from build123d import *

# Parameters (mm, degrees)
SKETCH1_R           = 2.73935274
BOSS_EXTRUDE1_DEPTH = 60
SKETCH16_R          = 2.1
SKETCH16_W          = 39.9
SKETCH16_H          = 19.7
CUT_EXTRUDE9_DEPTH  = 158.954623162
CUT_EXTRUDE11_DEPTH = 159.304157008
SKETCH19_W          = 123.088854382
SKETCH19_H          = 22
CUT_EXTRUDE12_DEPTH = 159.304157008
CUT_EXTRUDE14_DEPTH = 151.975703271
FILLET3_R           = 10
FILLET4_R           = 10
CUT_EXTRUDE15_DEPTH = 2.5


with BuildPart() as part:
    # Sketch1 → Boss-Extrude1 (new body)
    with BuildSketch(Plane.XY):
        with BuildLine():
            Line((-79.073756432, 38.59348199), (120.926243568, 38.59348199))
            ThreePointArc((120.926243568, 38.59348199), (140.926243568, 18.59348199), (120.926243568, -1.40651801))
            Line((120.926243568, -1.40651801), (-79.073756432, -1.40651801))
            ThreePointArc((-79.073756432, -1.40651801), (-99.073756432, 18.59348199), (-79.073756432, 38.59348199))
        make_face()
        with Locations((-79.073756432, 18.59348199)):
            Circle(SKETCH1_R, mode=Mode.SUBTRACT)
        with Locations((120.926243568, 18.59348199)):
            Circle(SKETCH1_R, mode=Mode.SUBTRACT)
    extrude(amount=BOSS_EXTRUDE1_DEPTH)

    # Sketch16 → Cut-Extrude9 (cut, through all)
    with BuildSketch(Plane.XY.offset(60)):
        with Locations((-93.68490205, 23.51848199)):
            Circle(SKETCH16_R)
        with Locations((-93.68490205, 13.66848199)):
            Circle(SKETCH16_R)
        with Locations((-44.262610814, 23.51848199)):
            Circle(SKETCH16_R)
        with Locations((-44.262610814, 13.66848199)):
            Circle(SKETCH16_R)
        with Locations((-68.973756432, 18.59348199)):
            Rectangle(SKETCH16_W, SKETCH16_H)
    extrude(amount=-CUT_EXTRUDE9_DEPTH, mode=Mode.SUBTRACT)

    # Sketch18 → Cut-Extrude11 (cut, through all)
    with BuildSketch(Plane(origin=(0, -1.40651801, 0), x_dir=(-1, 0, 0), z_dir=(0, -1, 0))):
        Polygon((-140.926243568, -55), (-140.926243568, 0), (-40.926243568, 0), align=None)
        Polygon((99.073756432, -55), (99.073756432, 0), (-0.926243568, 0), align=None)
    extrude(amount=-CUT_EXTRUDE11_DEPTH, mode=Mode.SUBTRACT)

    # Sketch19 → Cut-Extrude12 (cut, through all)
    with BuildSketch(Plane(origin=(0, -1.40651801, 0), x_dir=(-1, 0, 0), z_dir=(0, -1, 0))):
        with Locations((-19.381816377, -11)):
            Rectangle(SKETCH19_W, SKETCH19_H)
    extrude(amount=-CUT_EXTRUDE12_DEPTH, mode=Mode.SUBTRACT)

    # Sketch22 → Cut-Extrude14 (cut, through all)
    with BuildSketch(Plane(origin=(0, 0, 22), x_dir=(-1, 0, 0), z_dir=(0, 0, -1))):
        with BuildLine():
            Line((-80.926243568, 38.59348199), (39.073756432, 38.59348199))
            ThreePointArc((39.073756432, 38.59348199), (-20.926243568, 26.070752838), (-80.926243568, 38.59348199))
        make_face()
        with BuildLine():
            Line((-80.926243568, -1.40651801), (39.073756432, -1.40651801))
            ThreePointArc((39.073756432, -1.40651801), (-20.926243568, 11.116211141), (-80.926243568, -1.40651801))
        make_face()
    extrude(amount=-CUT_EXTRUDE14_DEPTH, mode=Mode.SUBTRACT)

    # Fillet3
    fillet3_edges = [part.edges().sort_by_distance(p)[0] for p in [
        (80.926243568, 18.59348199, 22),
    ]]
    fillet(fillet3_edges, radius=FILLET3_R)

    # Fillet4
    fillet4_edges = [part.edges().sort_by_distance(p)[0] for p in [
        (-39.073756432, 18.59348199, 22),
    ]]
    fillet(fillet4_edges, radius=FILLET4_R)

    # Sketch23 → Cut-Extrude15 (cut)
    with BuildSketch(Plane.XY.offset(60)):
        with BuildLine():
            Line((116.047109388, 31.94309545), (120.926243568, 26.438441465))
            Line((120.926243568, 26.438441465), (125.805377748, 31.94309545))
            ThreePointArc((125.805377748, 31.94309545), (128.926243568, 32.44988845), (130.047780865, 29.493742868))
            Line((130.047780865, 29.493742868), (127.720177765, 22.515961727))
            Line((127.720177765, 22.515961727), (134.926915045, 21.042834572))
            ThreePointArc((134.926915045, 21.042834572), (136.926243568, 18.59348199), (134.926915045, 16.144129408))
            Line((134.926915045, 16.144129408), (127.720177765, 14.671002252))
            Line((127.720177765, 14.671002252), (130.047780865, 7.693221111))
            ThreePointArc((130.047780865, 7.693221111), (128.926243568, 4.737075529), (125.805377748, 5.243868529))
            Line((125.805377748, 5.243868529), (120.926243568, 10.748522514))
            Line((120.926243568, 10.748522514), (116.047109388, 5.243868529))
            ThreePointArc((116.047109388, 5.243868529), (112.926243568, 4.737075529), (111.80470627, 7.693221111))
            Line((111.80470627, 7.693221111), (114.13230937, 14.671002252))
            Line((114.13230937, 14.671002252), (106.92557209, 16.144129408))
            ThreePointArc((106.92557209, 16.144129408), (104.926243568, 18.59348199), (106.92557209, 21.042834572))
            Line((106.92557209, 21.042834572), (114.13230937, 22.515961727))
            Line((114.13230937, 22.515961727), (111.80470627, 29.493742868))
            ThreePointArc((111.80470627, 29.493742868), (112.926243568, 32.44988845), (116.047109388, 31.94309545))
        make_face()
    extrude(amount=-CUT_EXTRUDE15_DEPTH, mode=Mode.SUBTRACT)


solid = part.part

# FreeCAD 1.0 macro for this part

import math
import FreeCAD as App
import Part
import Sketcher

V = App.Vector


def edges_at(feature, points):
    """Names of the edges that pass closest to the given points."""
    edges = feature.Shape.Edges
    near = lambda p: min(range(len(edges)), key=lambda i: edges[i].distToShape(Part.Vertex(*p))[0])
    return sorted({f"Edge{near(p) + 1}" for p in points})


def add_polygon(sketch, points):
    """Adds a closed chain of lines whose ends are joined by coincident constraints."""
    first, n = sketch.GeometryCount, len(points)
    for a, b in zip(points, points[1:] + points[:1]):
        sketch.addGeometry(Part.LineSegment(App.Vector(*a, 0), App.Vector(*b, 0)), False)
    for i in range(n):
        sketch.addConstraint(Sketcher.Constraint("Coincident", first + i, 2, first + (i + 1) % n, 1))

doc = App.newDocument("Part")
body = doc.addObject("PartDesign::Body", "Body")

sketch1 = doc.addObject("Sketcher::SketchObject", "Sketch")
body.addObject(sketch1)
sketch1.AttachmentSupport = (doc.XY_Plane, [""])
sketch1.MapMode = "FlatFace"
sketch1.addGeometry(Part.LineSegment(V(120.9, 38.6, 0), V(-79.1, 38.6, 0)), False)
sketch1.addGeometry(Part.ArcOfCircle(Part.Circle(V(-79.1, 18.6, 0), V(0, 0, 1), 20), math.radians(90), math.radians(270)), False)
sketch1.addGeometry(Part.LineSegment(V(-79.1, -1.4, 0), V(120.9, -1.4, 0)), False)
sketch1.addGeometry(Part.ArcOfCircle(Part.Circle(V(120.9, 18.6, 0), V(0, 0, 1), 20), math.radians(-90), math.radians(90)), False)
sketch1.addGeometry(Part.Circle(V(120.9, 18.6, 0), V(0, 0, 1), 2.7), False)
sketch1.addGeometry(Part.Circle(V(-79.1, 18.6, 0), V(0, 0, 1), 2.7), False)
sketch1.addConstraint(Sketcher.Constraint("Tangent", 0, 2, 1, 1))
sketch1.addConstraint(Sketcher.Constraint("Tangent", 1, 2, 2, 1))
sketch1.addConstraint(Sketcher.Constraint("Tangent", 2, 2, 3, 1))
sketch1.addConstraint(Sketcher.Constraint("Tangent", 3, 2, 0, 1))
sketch1.addConstraint(Sketcher.Constraint("Horizontal", 0))
sketch1.addConstraint(Sketcher.Constraint("Horizontal", 2))
sketch1.addConstraint(Sketcher.Constraint("Coincident", 4, 3, 3, 3))
sketch1.addConstraint(Sketcher.Constraint("Coincident", 5, 3, 1, 3))
sketch1.addConstraint(Sketcher.Constraint("Equal", 4, 5))
sketch1.addConstraint(Sketcher.Constraint("Radius", 1, 20.0))
sketch1.addConstraint(Sketcher.Constraint("DistanceX", 0, 2, 0, 1, 200.0))
sketch1.addConstraint(Sketcher.Constraint("Diameter", 4, 5.478705))
sketch1.addConstraint(Sketcher.Constraint("DistanceY", -1, 1, 1, 3, 18.593482))
sketch1.addConstraint(Sketcher.Constraint("DistanceX", 1, 3, -1, 1, 79.073756))
pad1 = doc.addObject("PartDesign::Pad", "Pad")
body.addObject(pad1)
pad1.Profile = sketch1
pad1.Length = 60

sketch2 = doc.addObject("Sketcher::SketchObject", "Sketch001")
body.addObject(sketch2)
sketch2.AttachmentSupport = (doc.XY_Plane, [""])
sketch2.MapMode = "FlatFace"
sketch2.AttachmentOffset = App.Placement(V(0, 0, 60), App.Rotation())
sketch2.addGeometry(Part.Circle(V(-93.7, 23.5, 0), V(0, 0, 1), 2.1), False)
sketch2.addGeometry(Part.Circle(V(-93.7, 13.7, 0), V(0, 0, 1), 2.1), False)
sketch2.addGeometry(Part.Circle(V(-44.3, 23.5, 0), V(0, 0, 1), 2.1), False)
sketch2.addGeometry(Part.Circle(V(-44.3, 13.7, 0), V(0, 0, 1), 2.1), False)
add_polygon(sketch2, [(-88.9, 28.4), (-88.9, 8.7), (-49, 8.7), (-49, 28.4)])
sketch2.addConstraint(Sketcher.Constraint("Vertical", 4))
sketch2.addConstraint(Sketcher.Constraint("Horizontal", 5))
sketch2.addConstraint(Sketcher.Constraint("Vertical", 6))
sketch2.addConstraint(Sketcher.Constraint("Horizontal", 7))
sketch2.addConstraint(Sketcher.Constraint("Equal", 0, 1))
sketch2.addConstraint(Sketcher.Constraint("Equal", 1, 2))
sketch2.addConstraint(Sketcher.Constraint("Equal", 2, 3))
sketch2.addConstraint(Sketcher.Constraint("Horizontal", 0, 3, 2, 3))
sketch2.addConstraint(Sketcher.Constraint("Horizontal", 1, 3, 3, 3))
sketch2.addConstraint(Sketcher.Constraint("Vertical", 0, 3, 1, 3))
sketch2.addConstraint(Sketcher.Constraint("Vertical", 2, 3, 3, 3))
sketch2.addConstraint(Sketcher.Constraint("Diameter", 0, 4.2))
sketch2.addConstraint(Sketcher.Constraint("DistanceX", 5, 1, 5, 2, 39.9))
sketch2.addConstraint(Sketcher.Constraint("DistanceY", 4, 2, 4, 1, 19.7))
sketch2.addConstraint(Sketcher.Constraint("DistanceY", 1, 3, 0, 3, 9.85))
sketch2.addConstraint(Sketcher.Constraint("DistanceY", 4, 2, 1, 3, 4.925))
sketch2.addConstraint(Sketcher.Constraint("DistanceY", -1, 1, 0, 3, 23.518482))
sketch2.addConstraint(Sketcher.Constraint("DistanceX", 2, 3, -1, 1, 44.262611))
sketch2.addConstraint(Sketcher.Constraint("DistanceX", 0, 3, 2, 3, 49.422291))
sketch2.addConstraint(Sketcher.Constraint("DistanceX", 4, 2, -1, 1, 88.923756))
pocket1 = doc.addObject("PartDesign::Pocket", "Pocket")
body.addObject(pocket1)
pocket1.Profile = sketch2
pocket1.Type = "ThroughAll"

sketch3 = doc.addObject("Sketcher::SketchObject", "Sketch002")
body.addObject(sketch3)
sketch3.AttachmentSupport = (doc.XZ_Plane, [""])
sketch3.MapMode = "FlatFace"
sketch3.AttachmentOffset = App.Placement(V(0, 0, 1.406518), App.Rotation())
add_polygon(sketch3, [(141, 0), (141, 55), (41, 0)])
add_polygon(sketch3, [(-99, 55), (-99, 0), (1, 0)])
sketch3.addConstraint(Sketcher.Constraint("Vertical", 0))
sketch3.addConstraint(Sketcher.Constraint("Horizontal", 2))
sketch3.addConstraint(Sketcher.Constraint("Vertical", 3))
sketch3.addConstraint(Sketcher.Constraint("Horizontal", 4))
sketch3.addConstraint(Sketcher.Constraint("PointOnObject", 1, 2, -1))
sketch3.addConstraint(Sketcher.Constraint("PointOnObject", 3, 2, -1))
sketch3.addConstraint(Sketcher.Constraint("Horizontal", 0, 2, 5, 2))
sketch3.addConstraint(Sketcher.Constraint("Equal", 2, 4))
sketch3.addConstraint(Sketcher.Constraint("DistanceX", 2, 1, 2, 2, 100.0))
sketch3.addConstraint(Sketcher.Constraint("DistanceY", 0, 1, 0, 2, 55.0))
sketch3.addConstraint(Sketcher.Constraint("DistanceX", 3, 2, 1, 2, 140.0))
sketch3.addConstraint(Sketcher.Constraint("DistanceX", -1, 1, 0, 2, 140.926244))
pocket2 = doc.addObject("PartDesign::Pocket", "Pocket001")
body.addObject(pocket2)
pocket2.Profile = sketch3
pocket2.Type = "ThroughAll"

sketch4 = doc.addObject("Sketcher::SketchObject", "Sketch003")
body.addObject(sketch4)
sketch4.AttachmentSupport = (doc.XZ_Plane, [""])
sketch4.MapMode = "FlatFace"
sketch4.AttachmentOffset = App.Placement(V(0, 0, 1.406518), App.Rotation())
add_polygon(sketch4, [(81, 0), (81, 22), (-42, 22), (-42, 0)])
sketch4.addConstraint(Sketcher.Constraint("Vertical", 0))
sketch4.addConstraint(Sketcher.Constraint("Horizontal", 1))
sketch4.addConstraint(Sketcher.Constraint("Vertical", 2))
sketch4.addConstraint(Sketcher.Constraint("Horizontal", 3))
sketch4.addConstraint(Sketcher.Constraint("PointOnObject", 2, 2, -1))
sketch4.addConstraint(Sketcher.Constraint("DistanceY", 0, 1, 0, 2, 22.0))
sketch4.addConstraint(Sketcher.Constraint("DistanceX", 1, 2, 1, 1, 123.088854))
sketch4.addConstraint(Sketcher.Constraint("DistanceX", 1, 2, -1, 1, 42.162611))
pocket3 = doc.addObject("PartDesign::Pocket", "Pocket002")
body.addObject(pocket3)
pocket3.Profile = sketch4
pocket3.Type = "ThroughAll"

sketch5 = doc.addObject("Sketcher::SketchObject", "Sketch004")
body.addObject(sketch5)
sketch5.AttachmentSupport = (doc.XY_Plane, [""])
sketch5.MapMode = "FlatFace"
sketch5.AttachmentOffset = App.Placement(V(0, 0, 22), App.Rotation())
sketch5.addGeometry(Part.LineSegment(V(-39, 39, 0), V(81, 39, 0)), False)
sketch5.addGeometry(Part.ArcOfCircle(Part.Circle(V(21, 176, 0), V(0, 0, 1), 150), math.radians(-114), math.radians(-66)), False)
sketch5.addGeometry(Part.LineSegment(V(81, -1, 0), V(-39, -1, 0)), False)
sketch5.addGeometry(Part.ArcOfCircle(Part.Circle(V(21, -139, 0), V(0, 0, 1), 150), math.radians(66), math.radians(114)), False)
sketch5.addConstraint(Sketcher.Constraint("Coincident", 0, 1, 1, 1))
sketch5.addConstraint(Sketcher.Constraint("Coincident", 1, 2, 0, 2))
sketch5.addConstraint(Sketcher.Constraint("Coincident", 2, 1, 3, 1))
sketch5.addConstraint(Sketcher.Constraint("Coincident", 3, 2, 2, 2))
sketch5.addConstraint(Sketcher.Constraint("Horizontal", 0))
sketch5.addConstraint(Sketcher.Constraint("Horizontal", 2))
sketch5.addConstraint(Sketcher.Constraint("Equal", 1, 3))
sketch5.addConstraint(Sketcher.Constraint("Vertical", 1, 3, 3, 3))
sketch5.addConstraint(Sketcher.Constraint("Vertical", 1, 2, 2, 1))
sketch5.addConstraint(Sketcher.Constraint("Radius", 1, 150.0))
sketch5.addConstraint(Sketcher.Constraint("DistanceX", 0, 1, 0, 2, 120.0))
sketch5.addConstraint(Sketcher.Constraint("DistanceY", 2, 1, 1, 2, 40.0))
sketch5.addConstraint(Sketcher.Constraint("DistanceY", 3, 3, -1, 1, 138.883789))
sketch5.addConstraint(Sketcher.Constraint("DistanceX", -1, 1, 1, 3, 20.926244))
pocket4 = doc.addObject("PartDesign::Pocket", "Pocket003")
body.addObject(pocket4)
pocket4.Profile = sketch5
pocket4.Type = "ThroughAll"
pocket4.Reversed = True
doc.recompute()

fillet = doc.addObject("PartDesign::Fillet", "Fillet")
body.addObject(fillet)
fillet.Base = (pocket4, edges_at(pocket4, [(80.926, 18.593, 22)]))
fillet.Radius = 10
doc.recompute()

fillet2 = doc.addObject("PartDesign::Fillet", "Fillet001")
body.addObject(fillet2)
fillet2.Base = (fillet, edges_at(fillet, [(-39.074, 18.593, 22)]))
fillet2.Radius = 10

sketch6 = doc.addObject("Sketcher::SketchObject", "Sketch005")
body.addObject(sketch6)
sketch6.AttachmentSupport = (doc.XY_Plane, [""])
sketch6.MapMode = "FlatFace"
sketch6.AttachmentOffset = App.Placement(V(0, 0, 60), App.Rotation())
sketch6.addGeometry(Part.LineSegment(V(120.9, 26.4, 0), V(116, 31.9, 0)), False)
sketch6.addGeometry(Part.ArcOfCircle(Part.Circle(V(114.2, 30.3, 0), V(0, 0, 1), 2.5), math.radians(42), math.radians(198)), False)
sketch6.addGeometry(Part.LineSegment(V(111.8, 29.5, 0), V(114.1, 22.5, 0)), False)
sketch6.addGeometry(Part.LineSegment(V(114.1, 22.5, 0), V(106.9, 21, 0)), False)
sketch6.addGeometry(Part.ArcOfCircle(Part.Circle(V(107.4, 18.6, 0), V(0, 0, 1), 2.5), math.radians(102), math.radians(258)), False)
sketch6.addGeometry(Part.LineSegment(V(106.9, 16.1, 0), V(114.1, 14.7, 0)), False)
sketch6.addGeometry(Part.LineSegment(V(114.1, 14.7, 0), V(111.8, 7.7, 0)), False)
sketch6.addGeometry(Part.ArcOfCircle(Part.Circle(V(114.2, 6.9, 0), V(0, 0, 1), 2.5), math.radians(162), math.radians(318)), False)
sketch6.addGeometry(Part.LineSegment(V(116, 5.2, 0), V(120.9, 10.7, 0)), False)
sketch6.addGeometry(Part.LineSegment(V(120.9, 10.7, 0), V(125.8, 5.2, 0)), False)
sketch6.addGeometry(Part.ArcOfCircle(Part.Circle(V(127.7, 6.9, 0), V(0, 0, 1), 2.5), math.radians(-138), math.radians(18)), False)
sketch6.addGeometry(Part.LineSegment(V(130, 7.7, 0), V(127.7, 14.7, 0)), False)
sketch6.addGeometry(Part.LineSegment(V(127.7, 14.7, 0), V(134.9, 16.1, 0)), False)
sketch6.addGeometry(Part.ArcOfCircle(Part.Circle(V(134.4, 18.6, 0), V(0, 0, 1), 2.5), math.radians(-78), math.radians(78)), False)
sketch6.addGeometry(Part.LineSegment(V(134.9, 21, 0), V(127.7, 22.5, 0)), False)
sketch6.addGeometry(Part.LineSegment(V(127.7, 22.5, 0), V(130, 29.5, 0)), False)
sketch6.addGeometry(Part.ArcOfCircle(Part.Circle(V(127.7, 30.3, 0), V(0, 0, 1), 2.5), math.radians(-18), math.radians(138)), False)
sketch6.addGeometry(Part.LineSegment(V(125.8, 31.9, 0), V(120.9, 26.4, 0)), False)
sketch6.addConstraint(Sketcher.Constraint("Tangent", 0, 2, 1, 1))
sketch6.addConstraint(Sketcher.Constraint("Tangent", 1, 2, 2, 1))
sketch6.addConstraint(Sketcher.Constraint("Coincident", 2, 2, 3, 1))
sketch6.addConstraint(Sketcher.Constraint("Tangent", 3, 2, 4, 1))
sketch6.addConstraint(Sketcher.Constraint("Tangent", 4, 2, 5, 1))
sketch6.addConstraint(Sketcher.Constraint("Coincident", 5, 2, 6, 1))
sketch6.addConstraint(Sketcher.Constraint("Tangent", 6, 2, 7, 1))
sketch6.addConstraint(Sketcher.Constraint("Tangent", 7, 2, 8, 1))
sketch6.addConstraint(Sketcher.Constraint("Coincident", 8, 2, 9, 1))
sketch6.addConstraint(Sketcher.Constraint("Tangent", 9, 2, 10, 1))
sketch6.addConstraint(Sketcher.Constraint("Tangent", 10, 2, 11, 1))
sketch6.addConstraint(Sketcher.Constraint("Coincident", 11, 2, 12, 1))
sketch6.addConstraint(Sketcher.Constraint("Tangent", 12, 2, 13, 1))
sketch6.addConstraint(Sketcher.Constraint("Tangent", 13, 2, 14, 1))
sketch6.addConstraint(Sketcher.Constraint("Coincident", 14, 2, 15, 1))
sketch6.addConstraint(Sketcher.Constraint("Tangent", 15, 2, 16, 1))
sketch6.addConstraint(Sketcher.Constraint("Tangent", 16, 2, 17, 1))
sketch6.addConstraint(Sketcher.Constraint("Coincident", 17, 2, 0, 1))
sketch6.addConstraint(Sketcher.Constraint("Equal", 1, 4))
sketch6.addConstraint(Sketcher.Constraint("Equal", 4, 7))
sketch6.addConstraint(Sketcher.Constraint("Equal", 7, 10))
sketch6.addConstraint(Sketcher.Constraint("Equal", 10, 13))
sketch6.addConstraint(Sketcher.Constraint("Equal", 13, 16))
sketch6.addConstraint(Sketcher.Constraint("Parallel", 0, 9))
sketch6.addConstraint(Sketcher.Constraint("Parallel", 2, 11))
sketch6.addConstraint(Sketcher.Constraint("Parallel", 3, 12))
sketch6.addConstraint(Sketcher.Constraint("Parallel", 5, 14))
sketch6.addConstraint(Sketcher.Constraint("Parallel", 6, 15))
sketch6.addConstraint(Sketcher.Constraint("Parallel", 8, 17))
sketch6.addConstraint(Sketcher.Constraint("Horizontal", 7, 3, 10, 3))
sketch6.addConstraint(Sketcher.Constraint("Horizontal", 4, 3, 13, 3))
sketch6.addConstraint(Sketcher.Constraint("Horizontal", 1, 3, 16, 3))
sketch6.addConstraint(Sketcher.Constraint("Horizontal", 7, 2, 9, 2))
sketch6.addConstraint(Sketcher.Constraint("Horizontal", 6, 2, 10, 2))
sketch6.addConstraint(Sketcher.Constraint("Horizontal", 5, 2, 11, 2))
sketch6.addConstraint(Sketcher.Constraint("Horizontal", 4, 2, 12, 2))
sketch6.addConstraint(Sketcher.Constraint("Horizontal", 2, 2, 14, 2))
sketch6.addConstraint(Sketcher.Constraint("Vertical", 1, 3, 7, 3))
sketch6.addConstraint(Sketcher.Constraint("Vertical", 2, 2, 5, 2))
sketch6.addConstraint(Sketcher.Constraint("Equal", 0, 2))
sketch6.addConstraint(Sketcher.Constraint("Equal", 2, 3))
sketch6.addConstraint(Sketcher.Constraint("Radius", 1, 2.5))
sketch6.addConstraint(Sketcher.Constraint("DistanceX", 4, 3, 13, 3, 27.0))
sketch6.addConstraint(Sketcher.Constraint("DistanceX", 7, 3, 10, 3, 13.5))
sketch6.addConstraint(Sketcher.Constraint("DistanceX", 2, 2, 0, 2, 1.9148))
sketch6.addConstraint(Sketcher.Constraint("DistanceY", 6, 2, 8, 2, 3.055301))
sketch6.addConstraint(Sketcher.Constraint("DistanceY", -1, 1, 4, 3, 18.593482))
sketch6.addConstraint(Sketcher.Constraint("DistanceX", -1, 1, 0, 2, 116.047109))
pocket5 = doc.addObject("PartDesign::Pocket", "Pocket004")
body.addObject(pocket5)
pocket5.Profile = sketch6
pocket5.Length = 2.5

doc.recompute()
